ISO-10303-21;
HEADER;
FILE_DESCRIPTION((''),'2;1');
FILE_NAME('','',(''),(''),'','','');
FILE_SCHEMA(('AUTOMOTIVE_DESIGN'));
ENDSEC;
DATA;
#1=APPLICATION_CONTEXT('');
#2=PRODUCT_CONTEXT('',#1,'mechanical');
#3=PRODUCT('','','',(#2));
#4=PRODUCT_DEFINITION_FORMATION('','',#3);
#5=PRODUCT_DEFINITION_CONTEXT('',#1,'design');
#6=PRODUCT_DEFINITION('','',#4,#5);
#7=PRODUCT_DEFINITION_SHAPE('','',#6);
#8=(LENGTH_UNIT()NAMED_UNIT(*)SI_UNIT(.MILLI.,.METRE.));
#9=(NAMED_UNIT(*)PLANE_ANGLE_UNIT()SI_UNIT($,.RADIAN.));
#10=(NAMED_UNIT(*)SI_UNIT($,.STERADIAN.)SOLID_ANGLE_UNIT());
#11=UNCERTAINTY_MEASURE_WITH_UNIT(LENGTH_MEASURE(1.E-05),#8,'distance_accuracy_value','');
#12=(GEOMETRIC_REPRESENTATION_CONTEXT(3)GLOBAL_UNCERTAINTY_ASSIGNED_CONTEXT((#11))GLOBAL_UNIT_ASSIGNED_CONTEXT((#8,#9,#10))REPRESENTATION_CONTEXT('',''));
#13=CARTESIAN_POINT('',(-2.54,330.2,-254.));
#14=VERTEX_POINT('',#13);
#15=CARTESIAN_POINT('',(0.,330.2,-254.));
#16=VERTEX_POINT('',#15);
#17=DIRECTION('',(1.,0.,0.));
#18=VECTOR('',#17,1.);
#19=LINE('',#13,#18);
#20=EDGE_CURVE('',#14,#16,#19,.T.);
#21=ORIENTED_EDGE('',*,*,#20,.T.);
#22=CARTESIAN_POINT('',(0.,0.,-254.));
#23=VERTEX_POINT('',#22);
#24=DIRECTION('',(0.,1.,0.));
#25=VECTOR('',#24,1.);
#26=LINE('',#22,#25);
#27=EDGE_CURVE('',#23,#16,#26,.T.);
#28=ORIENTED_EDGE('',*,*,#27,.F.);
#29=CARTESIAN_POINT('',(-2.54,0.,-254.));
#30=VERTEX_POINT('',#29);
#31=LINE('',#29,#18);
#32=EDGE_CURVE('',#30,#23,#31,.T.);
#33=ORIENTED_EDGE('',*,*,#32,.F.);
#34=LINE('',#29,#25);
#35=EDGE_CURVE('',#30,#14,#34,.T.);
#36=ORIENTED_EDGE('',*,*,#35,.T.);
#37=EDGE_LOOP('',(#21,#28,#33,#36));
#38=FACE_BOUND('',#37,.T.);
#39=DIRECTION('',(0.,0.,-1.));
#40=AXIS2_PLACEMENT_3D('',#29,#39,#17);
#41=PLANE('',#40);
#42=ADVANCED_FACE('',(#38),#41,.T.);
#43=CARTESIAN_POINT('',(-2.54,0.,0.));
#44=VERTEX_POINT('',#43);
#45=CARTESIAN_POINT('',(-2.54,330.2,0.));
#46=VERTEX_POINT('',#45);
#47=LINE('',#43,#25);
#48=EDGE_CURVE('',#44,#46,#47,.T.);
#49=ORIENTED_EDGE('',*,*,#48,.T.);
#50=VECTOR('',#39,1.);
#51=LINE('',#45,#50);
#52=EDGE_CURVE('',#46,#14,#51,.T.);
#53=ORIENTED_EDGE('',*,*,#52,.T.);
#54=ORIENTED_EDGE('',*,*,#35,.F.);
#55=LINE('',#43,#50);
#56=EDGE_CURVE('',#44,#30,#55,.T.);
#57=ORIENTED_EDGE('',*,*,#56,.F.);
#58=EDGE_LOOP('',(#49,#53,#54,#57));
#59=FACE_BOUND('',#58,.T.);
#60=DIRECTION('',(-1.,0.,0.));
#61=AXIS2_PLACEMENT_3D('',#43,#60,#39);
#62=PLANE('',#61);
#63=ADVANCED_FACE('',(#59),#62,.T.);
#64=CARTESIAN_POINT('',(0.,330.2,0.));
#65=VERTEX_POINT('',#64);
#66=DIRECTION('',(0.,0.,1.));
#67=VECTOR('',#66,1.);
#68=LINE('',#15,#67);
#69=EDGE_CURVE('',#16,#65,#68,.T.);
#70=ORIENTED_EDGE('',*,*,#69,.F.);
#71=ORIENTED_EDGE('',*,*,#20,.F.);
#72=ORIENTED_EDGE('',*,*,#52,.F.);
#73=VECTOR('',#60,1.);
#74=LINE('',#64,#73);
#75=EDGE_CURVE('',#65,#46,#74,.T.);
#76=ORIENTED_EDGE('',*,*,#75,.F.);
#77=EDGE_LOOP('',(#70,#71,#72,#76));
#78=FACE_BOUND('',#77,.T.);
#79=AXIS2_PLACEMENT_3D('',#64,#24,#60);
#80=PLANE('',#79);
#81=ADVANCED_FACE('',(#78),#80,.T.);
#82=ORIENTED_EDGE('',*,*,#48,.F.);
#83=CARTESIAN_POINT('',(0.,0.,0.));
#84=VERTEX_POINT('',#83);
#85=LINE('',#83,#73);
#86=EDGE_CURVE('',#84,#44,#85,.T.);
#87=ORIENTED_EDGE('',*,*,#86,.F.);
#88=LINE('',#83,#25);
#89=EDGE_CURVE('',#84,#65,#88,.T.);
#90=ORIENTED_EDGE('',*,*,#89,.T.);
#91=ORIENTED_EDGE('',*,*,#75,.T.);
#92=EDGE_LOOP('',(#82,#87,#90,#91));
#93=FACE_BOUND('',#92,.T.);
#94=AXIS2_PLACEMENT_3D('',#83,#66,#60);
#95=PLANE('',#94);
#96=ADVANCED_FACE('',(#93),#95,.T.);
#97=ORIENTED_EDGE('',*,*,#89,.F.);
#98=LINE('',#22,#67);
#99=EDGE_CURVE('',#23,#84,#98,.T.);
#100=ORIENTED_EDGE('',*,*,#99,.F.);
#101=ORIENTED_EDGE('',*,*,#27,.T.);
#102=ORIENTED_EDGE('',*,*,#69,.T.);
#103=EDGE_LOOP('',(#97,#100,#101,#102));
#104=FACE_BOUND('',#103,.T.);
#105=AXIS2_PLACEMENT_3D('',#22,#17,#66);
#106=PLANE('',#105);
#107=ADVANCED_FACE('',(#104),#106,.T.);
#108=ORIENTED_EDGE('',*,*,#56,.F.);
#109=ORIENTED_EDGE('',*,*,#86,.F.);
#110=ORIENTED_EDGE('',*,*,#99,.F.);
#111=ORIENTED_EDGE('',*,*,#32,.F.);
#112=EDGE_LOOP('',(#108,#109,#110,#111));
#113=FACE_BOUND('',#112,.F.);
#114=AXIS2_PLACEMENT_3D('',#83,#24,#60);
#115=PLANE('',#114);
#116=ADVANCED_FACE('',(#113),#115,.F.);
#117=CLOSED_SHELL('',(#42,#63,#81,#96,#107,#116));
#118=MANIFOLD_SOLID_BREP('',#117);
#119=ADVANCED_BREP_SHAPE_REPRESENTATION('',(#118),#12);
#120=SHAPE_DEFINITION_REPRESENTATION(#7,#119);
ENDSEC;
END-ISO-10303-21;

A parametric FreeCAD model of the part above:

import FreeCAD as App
import Part
import Sketcher
Q = App.Units.Quantity


def add_polygon(sketch, points):
    """Adds a closed chain of lines whose ends are joined by coincident constraints."""
    first, n = sketch.GeometryCount, len(points)
    for a, b in zip(points, points[1:] + points[:1]):
        sketch.addGeometry(Part.LineSegment(App.Vector(*a, 0), App.Vector(*b, 0)), False)
    for i in range(n):
        sketch.addConstraint(Sketcher.Constraint("Coincident", first + i, 2, first + (i + 1) % n, 1))

doc = App.newDocument("Part")
body = doc.addObject("PartDesign::Body", "Body")

sketch1 = body.newObject("Sketcher::SketchObject", "Sketch")
sketch1.AttachmentSupport = (doc.getObject("XZ_Plane"), [""])
sketch1.MapMode = "FlatFace"
add_polygon(sketch1, [(-2.5, 0), (0, 0), (0, -254), (-2.5, -254)])
sketch1.addConstraint(Sketcher.Constraint("Horizontal", 0))
sketch1.addConstraint(Sketcher.Constraint("Vertical", 1))
sketch1.addConstraint(Sketcher.Constraint("Horizontal", 2))
sketch1.addConstraint(Sketcher.Constraint("Vertical", 3))
sketch1.addConstraint(Sketcher.Constraint("Coincident", 0, 2, -1, 1))
sketch1.addConstraint(Sketcher.Constraint("DistanceY", 1, 2, 1, 1, Q("10 in")))
sketch1.addConstraint(Sketcher.Constraint("DistanceX", 0, 1, 0, 2, Q("0.1 in")))
pad1 = body.newObject("PartDesign::Pad", "Pad")
pad1.Profile = sketch1
pad1.Length = Q("13 in")
pad1.Reversed = True

doc.recompute()
